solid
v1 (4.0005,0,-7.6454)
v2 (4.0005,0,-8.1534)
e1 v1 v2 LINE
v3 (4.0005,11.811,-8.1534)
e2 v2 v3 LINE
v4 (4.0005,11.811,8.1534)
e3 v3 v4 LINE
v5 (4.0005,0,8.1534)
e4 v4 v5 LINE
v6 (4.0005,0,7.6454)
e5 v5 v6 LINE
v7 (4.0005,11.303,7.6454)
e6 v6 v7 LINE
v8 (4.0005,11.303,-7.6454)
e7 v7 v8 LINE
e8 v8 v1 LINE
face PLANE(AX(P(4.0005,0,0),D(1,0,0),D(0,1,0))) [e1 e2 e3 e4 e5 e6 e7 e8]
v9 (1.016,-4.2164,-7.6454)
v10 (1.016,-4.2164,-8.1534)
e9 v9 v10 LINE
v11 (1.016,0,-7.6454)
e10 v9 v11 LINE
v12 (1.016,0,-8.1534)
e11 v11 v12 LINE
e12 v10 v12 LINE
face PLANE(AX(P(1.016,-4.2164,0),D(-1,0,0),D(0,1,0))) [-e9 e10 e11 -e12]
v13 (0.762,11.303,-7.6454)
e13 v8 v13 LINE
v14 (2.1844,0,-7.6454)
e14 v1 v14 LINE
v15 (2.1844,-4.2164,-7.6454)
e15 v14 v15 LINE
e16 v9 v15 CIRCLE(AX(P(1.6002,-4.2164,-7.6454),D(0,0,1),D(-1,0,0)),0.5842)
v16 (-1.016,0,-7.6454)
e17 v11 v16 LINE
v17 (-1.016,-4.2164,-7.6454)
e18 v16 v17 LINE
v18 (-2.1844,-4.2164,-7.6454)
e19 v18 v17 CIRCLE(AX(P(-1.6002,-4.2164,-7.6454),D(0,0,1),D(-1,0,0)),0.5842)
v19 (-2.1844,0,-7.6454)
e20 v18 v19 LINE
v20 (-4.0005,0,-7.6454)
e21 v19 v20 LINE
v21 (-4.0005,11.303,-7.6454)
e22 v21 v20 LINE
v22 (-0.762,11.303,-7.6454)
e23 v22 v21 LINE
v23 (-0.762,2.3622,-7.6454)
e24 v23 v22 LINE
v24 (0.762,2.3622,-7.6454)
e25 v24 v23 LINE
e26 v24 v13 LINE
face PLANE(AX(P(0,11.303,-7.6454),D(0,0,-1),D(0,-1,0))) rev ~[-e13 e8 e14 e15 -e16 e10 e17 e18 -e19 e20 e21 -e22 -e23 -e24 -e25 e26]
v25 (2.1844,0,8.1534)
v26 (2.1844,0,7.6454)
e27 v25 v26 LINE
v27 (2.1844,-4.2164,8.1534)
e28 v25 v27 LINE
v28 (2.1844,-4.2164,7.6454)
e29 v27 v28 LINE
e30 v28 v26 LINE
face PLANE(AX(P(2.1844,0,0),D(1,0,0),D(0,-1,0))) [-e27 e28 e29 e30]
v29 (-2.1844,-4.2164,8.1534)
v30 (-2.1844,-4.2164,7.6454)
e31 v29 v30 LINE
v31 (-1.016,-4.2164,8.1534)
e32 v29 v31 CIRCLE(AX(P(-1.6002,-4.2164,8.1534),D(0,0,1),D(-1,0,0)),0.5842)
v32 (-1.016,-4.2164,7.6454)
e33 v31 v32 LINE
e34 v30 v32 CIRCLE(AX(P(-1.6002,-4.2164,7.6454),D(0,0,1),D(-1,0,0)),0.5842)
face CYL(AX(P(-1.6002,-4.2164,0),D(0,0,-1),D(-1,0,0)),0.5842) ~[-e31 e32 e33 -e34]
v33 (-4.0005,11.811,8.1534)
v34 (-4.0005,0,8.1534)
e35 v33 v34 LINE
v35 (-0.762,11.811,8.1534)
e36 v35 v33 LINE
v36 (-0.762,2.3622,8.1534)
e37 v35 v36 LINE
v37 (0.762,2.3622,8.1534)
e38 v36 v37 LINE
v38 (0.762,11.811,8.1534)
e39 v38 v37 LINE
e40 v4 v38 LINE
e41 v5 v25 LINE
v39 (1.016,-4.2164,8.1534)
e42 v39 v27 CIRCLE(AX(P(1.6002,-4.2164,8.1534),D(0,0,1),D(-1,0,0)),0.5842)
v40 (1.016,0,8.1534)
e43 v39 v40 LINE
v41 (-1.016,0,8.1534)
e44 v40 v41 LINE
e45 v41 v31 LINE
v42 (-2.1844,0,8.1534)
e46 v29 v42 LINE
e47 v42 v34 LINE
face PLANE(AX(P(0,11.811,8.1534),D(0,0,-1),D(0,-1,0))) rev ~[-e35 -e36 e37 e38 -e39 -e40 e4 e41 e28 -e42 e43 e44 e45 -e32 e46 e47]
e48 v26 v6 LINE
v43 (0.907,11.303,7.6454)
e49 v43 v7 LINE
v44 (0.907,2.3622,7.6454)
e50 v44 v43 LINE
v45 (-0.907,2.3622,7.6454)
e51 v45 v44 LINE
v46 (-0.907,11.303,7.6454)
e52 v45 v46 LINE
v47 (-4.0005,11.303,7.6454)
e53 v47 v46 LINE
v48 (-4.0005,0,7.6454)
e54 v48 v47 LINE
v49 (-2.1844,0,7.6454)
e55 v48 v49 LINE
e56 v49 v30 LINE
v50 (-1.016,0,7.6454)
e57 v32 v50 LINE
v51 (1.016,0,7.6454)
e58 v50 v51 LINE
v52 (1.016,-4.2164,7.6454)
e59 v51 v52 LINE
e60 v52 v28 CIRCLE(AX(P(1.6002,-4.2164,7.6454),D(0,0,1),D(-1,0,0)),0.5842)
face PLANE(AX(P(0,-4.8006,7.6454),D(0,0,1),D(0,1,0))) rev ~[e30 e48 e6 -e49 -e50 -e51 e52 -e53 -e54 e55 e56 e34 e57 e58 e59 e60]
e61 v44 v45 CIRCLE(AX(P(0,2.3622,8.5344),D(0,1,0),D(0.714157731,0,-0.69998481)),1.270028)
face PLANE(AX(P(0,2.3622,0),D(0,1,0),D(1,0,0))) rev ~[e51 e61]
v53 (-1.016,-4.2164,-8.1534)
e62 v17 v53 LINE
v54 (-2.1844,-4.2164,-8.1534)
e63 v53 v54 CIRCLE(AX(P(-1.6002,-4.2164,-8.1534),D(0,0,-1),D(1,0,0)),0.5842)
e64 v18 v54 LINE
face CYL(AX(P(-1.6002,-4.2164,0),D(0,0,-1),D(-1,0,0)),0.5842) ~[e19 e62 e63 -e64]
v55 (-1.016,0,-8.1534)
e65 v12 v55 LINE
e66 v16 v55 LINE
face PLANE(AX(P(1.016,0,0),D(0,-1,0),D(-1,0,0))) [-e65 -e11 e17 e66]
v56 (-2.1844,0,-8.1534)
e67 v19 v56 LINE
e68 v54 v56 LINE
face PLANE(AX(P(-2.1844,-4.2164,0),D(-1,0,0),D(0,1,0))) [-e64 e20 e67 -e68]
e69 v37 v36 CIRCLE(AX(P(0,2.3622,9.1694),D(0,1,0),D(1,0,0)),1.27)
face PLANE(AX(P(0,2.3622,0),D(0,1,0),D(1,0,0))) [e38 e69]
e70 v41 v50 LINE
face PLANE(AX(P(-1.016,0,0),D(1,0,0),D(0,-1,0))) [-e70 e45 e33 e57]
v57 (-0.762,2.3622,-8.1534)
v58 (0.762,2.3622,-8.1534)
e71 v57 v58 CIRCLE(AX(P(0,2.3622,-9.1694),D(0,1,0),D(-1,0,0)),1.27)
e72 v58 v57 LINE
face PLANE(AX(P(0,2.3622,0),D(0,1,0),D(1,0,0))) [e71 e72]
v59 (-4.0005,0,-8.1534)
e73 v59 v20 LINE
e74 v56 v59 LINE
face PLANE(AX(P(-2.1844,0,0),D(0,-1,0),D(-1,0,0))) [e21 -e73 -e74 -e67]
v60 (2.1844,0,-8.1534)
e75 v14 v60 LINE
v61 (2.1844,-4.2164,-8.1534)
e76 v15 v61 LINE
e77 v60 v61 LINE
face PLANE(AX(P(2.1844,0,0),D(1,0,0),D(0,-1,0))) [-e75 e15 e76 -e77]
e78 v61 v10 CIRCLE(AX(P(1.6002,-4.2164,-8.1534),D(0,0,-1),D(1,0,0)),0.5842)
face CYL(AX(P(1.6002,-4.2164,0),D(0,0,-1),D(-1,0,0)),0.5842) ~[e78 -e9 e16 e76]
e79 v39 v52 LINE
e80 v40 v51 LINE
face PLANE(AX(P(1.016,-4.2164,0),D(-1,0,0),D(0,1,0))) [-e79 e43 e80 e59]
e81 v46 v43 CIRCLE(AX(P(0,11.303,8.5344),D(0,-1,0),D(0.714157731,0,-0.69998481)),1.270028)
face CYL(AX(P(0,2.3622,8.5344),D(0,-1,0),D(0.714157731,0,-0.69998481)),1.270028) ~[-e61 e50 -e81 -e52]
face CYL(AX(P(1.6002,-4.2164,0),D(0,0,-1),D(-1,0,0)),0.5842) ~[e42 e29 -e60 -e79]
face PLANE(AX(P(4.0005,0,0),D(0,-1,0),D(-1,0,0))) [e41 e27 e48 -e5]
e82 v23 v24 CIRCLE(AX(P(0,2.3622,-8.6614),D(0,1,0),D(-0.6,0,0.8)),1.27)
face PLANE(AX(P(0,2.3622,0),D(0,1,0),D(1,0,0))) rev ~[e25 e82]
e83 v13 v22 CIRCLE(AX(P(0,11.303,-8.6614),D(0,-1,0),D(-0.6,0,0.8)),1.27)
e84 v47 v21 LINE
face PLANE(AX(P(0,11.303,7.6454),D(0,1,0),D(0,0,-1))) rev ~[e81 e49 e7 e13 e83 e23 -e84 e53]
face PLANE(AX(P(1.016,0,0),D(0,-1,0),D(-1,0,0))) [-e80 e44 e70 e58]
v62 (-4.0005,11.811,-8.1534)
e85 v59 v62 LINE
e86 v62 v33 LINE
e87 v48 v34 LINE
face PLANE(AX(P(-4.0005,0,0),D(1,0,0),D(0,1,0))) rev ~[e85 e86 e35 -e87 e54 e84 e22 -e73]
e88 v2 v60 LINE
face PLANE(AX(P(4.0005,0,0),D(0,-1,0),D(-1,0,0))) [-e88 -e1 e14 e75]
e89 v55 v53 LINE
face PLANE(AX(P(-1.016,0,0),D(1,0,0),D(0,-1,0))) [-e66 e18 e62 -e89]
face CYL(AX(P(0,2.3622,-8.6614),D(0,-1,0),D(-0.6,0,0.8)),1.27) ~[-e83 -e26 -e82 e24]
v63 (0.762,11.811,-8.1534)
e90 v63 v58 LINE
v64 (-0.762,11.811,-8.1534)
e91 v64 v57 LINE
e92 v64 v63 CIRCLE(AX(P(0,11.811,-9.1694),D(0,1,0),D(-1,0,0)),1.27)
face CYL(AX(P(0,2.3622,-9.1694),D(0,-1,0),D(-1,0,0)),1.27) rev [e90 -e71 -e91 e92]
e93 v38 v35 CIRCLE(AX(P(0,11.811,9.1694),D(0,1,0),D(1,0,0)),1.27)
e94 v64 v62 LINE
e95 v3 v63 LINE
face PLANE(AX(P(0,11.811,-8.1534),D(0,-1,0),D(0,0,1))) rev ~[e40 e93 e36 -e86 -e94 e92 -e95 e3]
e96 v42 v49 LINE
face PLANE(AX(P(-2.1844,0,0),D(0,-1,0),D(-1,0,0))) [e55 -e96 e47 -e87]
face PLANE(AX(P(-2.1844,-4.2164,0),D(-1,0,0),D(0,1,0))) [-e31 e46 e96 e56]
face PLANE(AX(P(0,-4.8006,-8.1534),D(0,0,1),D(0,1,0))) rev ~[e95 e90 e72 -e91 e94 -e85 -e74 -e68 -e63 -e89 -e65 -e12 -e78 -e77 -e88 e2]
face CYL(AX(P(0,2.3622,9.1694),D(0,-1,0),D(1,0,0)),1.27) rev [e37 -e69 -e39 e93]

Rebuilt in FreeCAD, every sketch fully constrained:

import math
import FreeCAD as App
import Part
import Sketcher
Q = App.Units.Quantity

doc = App.newDocument("Part")
body = doc.addObject("PartDesign::Body", "Body")

# Sketch on YZ plane
sketch1 = body.newObject("Sketcher::SketchObject", "Sketch")
sketch1.AttachmentSupport = (doc.getObject("YZ_Plane"), [""])
sketch1.MapMode = "FlatFace"
sketch1.addGeometry([
    Part.LineSegment(App.Vector(11.8, 8.2, 0), App.Vector(-4.8, 8.2, 0)),  # 0
    Part.LineSegment(App.Vector(-4.8, 8.2, 0), App.Vector(-4.8, 7.6, 0)),  # 1
    Part.LineSegment(App.Vector(-4.8, 7.6, 0), App.Vector(11.3, 7.6, 0)),  # 2
    Part.LineSegment(App.Vector(11.3, 7.6, 0), App.Vector(11.3, -7.6, 0)),  # 3
    Part.LineSegment(App.Vector(11.3, -7.6, 0), App.Vector(-4.8, -7.6, 0)),  # 4
    Part.LineSegment(App.Vector(-4.8, -7.6, 0), App.Vector(-4.8, -8.2, 0)),  # 5
    Part.LineSegment(App.Vector(-4.8, -8.2, 0), App.Vector(11.8, -8.2, 0)),  # 6
    Part.LineSegment(App.Vector(11.8, -8.2, 0), App.Vector(11.8, 8.2, 0)),  # 7
], False)
sketch1.addConstraint([
    Sketcher.Constraint("Coincident", 0, 2, 1, 1),
    Sketcher.Constraint("Coincident", 1, 2, 2, 1),
    Sketcher.Constraint("Coincident", 2, 2, 3, 1),
    Sketcher.Constraint("Coincident", 3, 2, 4, 1),
    Sketcher.Constraint("Coincident", 4, 2, 5, 1),
    Sketcher.Constraint("Coincident", 5, 2, 6, 1),
    Sketcher.Constraint("Coincident", 6, 2, 7, 1),
    Sketcher.Constraint("Coincident", 7, 2, 0, 1),
    Sketcher.Constraint("Horizontal", 0),
    Sketcher.Constraint("Vertical", 1),
    Sketcher.Constraint("Horizontal", 2),
    Sketcher.Constraint("Vertical", 3),
    Sketcher.Constraint("Horizontal", 4),
    Sketcher.Constraint("Vertical", 5),
    Sketcher.Constraint("Horizontal", 6),
    Sketcher.Constraint("Vertical", 7),
    Sketcher.Constraint("Symmetric", 1, 2, 4, 2, -1),
    Sketcher.Constraint("Equal", 1, 5),
    Sketcher.Constraint("DistanceY", 1, 2, 1, 1, Q("0.02 in")),
    Sketcher.Constraint("DistanceX", 0, 2, 0, 1, Q("0.654 in")),
    Sketcher.Constraint("DistanceX", 2, 1, 2, 2, Q("0.634 in")),
    Sketcher.Constraint("DistanceY", 3, 2, 3, 1, Q("0.602 in")),
    Sketcher.Constraint("DistanceX", 0, 2, -1, 1, Q("0.189 in")),
])
pad1 = body.newObject("PartDesign::Pad", "Pad")
pad1.Profile = sketch1
pad1.Length = Q("0.315 in")
pad1.Midplane = True

# Sketch on XY plane
sketch2 = body.newObject("Sketcher::SketchObject", "Sketch001")
sketch2.AttachmentSupport = (doc.getObject("XY_Plane"), [""])
sketch2.MapMode = "FlatFace"
sketch2.addGeometry([
    Part.LineSegment(App.Vector(-2.2, 0, 0), App.Vector(-4, 0, 0)),  # 0
    Part.LineSegment(App.Vector(-4, 0, 0), App.Vector(-4, -5, 0)),  # 1
    Part.LineSegment(App.Vector(-4, -5, 0), App.Vector(4, -5, 0)),  # 2
    Part.LineSegment(App.Vector(4, -5, 0), App.Vector(4, 0, 0)),  # 3
    Part.LineSegment(App.Vector(4, 0, 0), App.Vector(2.2, 0, 0)),  # 4
    Part.LineSegment(App.Vector(2.2, 0, 0), App.Vector(2.2, -4.2, 0)),  # 5
    Part.ArcOfCircle(Part.Circle(App.Vector(1.6, -4.2, 0), App.Vector(0, 0, 1), 0.6), math.radians(180), math.radians(360)),  # 6
    Part.LineSegment(App.Vector(1, -4.2, 0), App.Vector(1, 0, 0)),  # 7
    Part.LineSegment(App.Vector(1, 0, 0), App.Vector(-1, 0, 0)),  # 8
    Part.LineSegment(App.Vector(-1, 0, 0), App.Vector(-1, -4.2, 0)),  # 9
    Part.ArcOfCircle(Part.Circle(App.Vector(-1.6, -4.2, 0), App.Vector(0, 0, 1), 0.6), math.radians(180), math.radians(360)),  # 10
    Part.LineSegment(App.Vector(-2.2, -4.2, 0), App.Vector(-2.2, 0, 0)),  # 11
], False)
sketch2.addConstraint([
    Sketcher.Constraint("Coincident", 0, 2, 1, 1),
    Sketcher.Constraint("Coincident", 1, 2, 2, 1),
    Sketcher.Constraint("Coincident", 2, 2, 3, 1),
    Sketcher.Constraint("Coincident", 3, 2, 4, 1),
    Sketcher.Constraint("Coincident", 4, 2, 5, 1),
    Sketcher.Constraint("Tangent", 5, 2, 6, 2),
    Sketcher.Constraint("Tangent", 6, 1, 7, 1),
    Sketcher.Constraint("Coincident", 7, 2, 8, 1),
    Sketcher.Constraint("Coincident", 8, 2, 9, 1),
    Sketcher.Constraint("Tangent", 9, 2, 10, 2),
    Sketcher.Constraint("Tangent", 10, 1, 11, 1),
    Sketcher.Constraint("Coincident", 11, 2, 0, 1),
    Sketcher.Constraint("Horizontal", 0),
    Sketcher.Constraint("Vertical", 1),
    Sketcher.Constraint("Horizontal", 2),
    Sketcher.Constraint("Vertical", 3),
    Sketcher.Constraint("Horizontal", 4),
    Sketcher.Constraint("Vertical", 5),
    Sketcher.Constraint("Vertical", 7),
    Sketcher.Constraint("Horizontal", 8),
    Sketcher.Constraint("Vertical", 9),
    Sketcher.Constraint("Vertical", 11),
    Sketcher.Constraint("Equal", 6, 10),
    Sketcher.Constraint("Symmetric", 0, 2, 3, 2, -1, 1),
    Sketcher.Constraint("Symmetric", 7, 2, 8, 2, -1, 1),
    Sketcher.Constraint("PointOnObject", 0, 2, -1),
    Sketcher.Constraint("Horizontal", 6, 3, 10, 3),
    Sketcher.Constraint("Radius", 6, Q("0.023 in")),
    Sketcher.Constraint("DistanceX", 8, 2, 8, 1, Q("0.08 in")),
    Sketcher.Constraint("DistanceX", 2, 1, 2, 2, Q("0.315 in")),
    Sketcher.Constraint("DistanceY", 1, 2, 1, 1, Q("0.195 in")),
    Sketcher.Constraint("DistanceY", 5, 2, 5, 1, Q("0.166 in")),
])
pocket1 = body.newObject("PartDesign::Pocket", "Pocket")
pocket1.Profile = sketch2
pocket1.Length = Q("0.642 in")
pocket1.Midplane = True

# Sketch on XZ plane
sketch3 = body.newObject("Sketcher::SketchObject", "Sketch002")
sketch3.AttachmentSupport = (doc.getObject("XZ_Plane"), [""])
sketch3.MapMode = "FlatFace"
sketch3.AttachmentOffset = App.Placement(App.Vector(0, 0, -0.093 * 25.4), App.Rotation())
sketch3.addGeometry([
    Part.LineSegment(App.Vector(0.8, -7.6, 0), App.Vector(-0.8, -7.6, 0)),
    Part.ArcOfCircle(Part.Circle(App.Vector(0, -8.7, 0), App.Vector(0, 0, 1), 1.3), math.radians(53), math.radians(127)),
], False)
sketch3.addConstraint([
    Sketcher.Constraint("Coincident", 0, 1, 1, 1),
    Sketcher.Constraint("Coincident", 1, 2, 0, 2),
    Sketcher.Constraint("Horizontal", 0),
    Sketcher.Constraint("PointOnObject", 1, 3, -2),
    Sketcher.Constraint("Radius", 1, Q("0.05 in")),
    Sketcher.Constraint("DistanceX", 0, 2, 0, 1, Q("0.06 in")),
    Sketcher.Constraint("DistanceY", 1, 3, -1, 1, Q("0.341 in")),
])
pad2 = body.newObject("PartDesign::Pad", "Pad001")
pad2.Profile = sketch3
pad2.Length = Q("0.372 in")
pad2.Reversed = True

# Sketch on XZ plane
sketch4 = body.newObject("Sketcher::SketchObject", "Sketch003")
sketch4.AttachmentSupport = (doc.getObject("XZ_Plane"), [""])
sketch4.MapMode = "FlatFace"
sketch4.AttachmentOffset = App.Placement(App.Vector(0, 0, -0.093 * 25.4), App.Rotation())
sketch4.addGeometry([
    Part.LineSegment(App.Vector(1.3, -9.2, 0), App.Vector(-1.3, -9.2, 0)),
    Part.ArcOfCircle(Part.Circle(App.Vector(0, -9.2, 0), App.Vector(0, 0, 1), 1.3), math.radians(0), math.radians(180)),
], False)
sketch4.addConstraint([
    Sketcher.Constraint("Coincident", 0, 1, 1, 1),
    Sketcher.Constraint("Coincident", 1, 2, 0, 2),
    Sketcher.Constraint("Horizontal", 0),
    Sketcher.Constraint("PointOnObject", 1, 3, -2),
    Sketcher.Constraint("Horizontal", 1, 3, 0, 1),
    Sketcher.Constraint("Radius", 1, Q("0.05 in")),
    Sketcher.Constraint("DistanceY", 1, 3, -1, 1, Q("0.361 in")),
])
pocket2 = body.newObject("PartDesign::Pocket", "Pocket001")
pocket2.Profile = sketch4
pocket2.Length = Q("0.372 in")

# Sketch on XZ plane
sketch5 = body.newObject("Sketcher::SketchObject", "Sketch004")
sketch5.AttachmentSupport = (doc.getObject("XZ_Plane"), [""])
sketch5.MapMode = "FlatFace"
sketch5.AttachmentOffset = App.Placement(App.Vector(0, 0, -0.093 * 25.4), App.Rotation())
sketch5.addGeometry([
    Part.ArcOfCircle(Part.Circle(App.Vector(0, 8.5, 0), App.Vector(0, 0, 1), 1.3), math.radians(-136), math.radians(-44)),
    Part.LineSegment(App.Vector(-0.9, 7.6, 0), App.Vector(0.9, 7.6, 0)),
], False)
sketch5.addConstraint([
    Sketcher.Constraint("Coincident", 0, 1, 1, 1),
    Sketcher.Constraint("Coincident", 1, 2, 0, 2),
    Sketcher.Constraint("Horizontal", 1),
    Sketcher.Constraint("PointOnObject", 0, 3, -2),
    Sketcher.Constraint("Radius", 0, Q("0.05 in")),
    Sketcher.Constraint("DistanceY", -1, 1, 0, 3, Q("0.336 in")),
    Sketcher.Constraint("DistanceY", -1, 1, 0, 1, Q("0.301 in")),
])
pad3 = body.newObject("PartDesign::Pad", "Pad002")
pad3.Profile = sketch5
pad3.Length = Q("0.372 in")
pad3.Reversed = True

# Sketch on XZ plane
sketch6 = body.newObject("Sketcher::SketchObject", "Sketch005")
sketch6.AttachmentSupport = (doc.getObject("XZ_Plane"), [""])
sketch6.MapMode = "FlatFace"
sketch6.AttachmentOffset = App.Placement(App.Vector(0, 0, -0.093 * 25.4), App.Rotation())
sketch6.addGeometry([
    Part.ArcOfCircle(Part.Circle(App.Vector(0, 9.2, 0), App.Vector(0, 0, 1), 1.3), math.radians(180), math.radians(360)),
    Part.LineSegment(App.Vector(-1.3, 9.2, 0), App.Vector(1.3, 9.2, 0)),
], False)
sketch6.addConstraint([
    Sketcher.Constraint("Coincident", 0, 1, 1, 1),
    Sketcher.Constraint("Coincident", 1, 2, 0, 2),
    Sketcher.Constraint("Horizontal", 1),
    Sketcher.Constraint("PointOnObject", 0, 3, -2),
    Sketcher.Constraint("Radius", 0, Q("0.05 in")),
    Sketcher.Constraint("DistanceY", -1, 1, 0, 3, Q("0.361 in")),
    Sketcher.Constraint("DistanceY", -1, 1, 0, 1, Q("0.361 in")),
])
pocket3 = body.newObject("PartDesign::Pocket", "Pocket002")
pocket3.Profile = sketch6
pocket3.Length = Q("0.372 in")

doc.recompute()
